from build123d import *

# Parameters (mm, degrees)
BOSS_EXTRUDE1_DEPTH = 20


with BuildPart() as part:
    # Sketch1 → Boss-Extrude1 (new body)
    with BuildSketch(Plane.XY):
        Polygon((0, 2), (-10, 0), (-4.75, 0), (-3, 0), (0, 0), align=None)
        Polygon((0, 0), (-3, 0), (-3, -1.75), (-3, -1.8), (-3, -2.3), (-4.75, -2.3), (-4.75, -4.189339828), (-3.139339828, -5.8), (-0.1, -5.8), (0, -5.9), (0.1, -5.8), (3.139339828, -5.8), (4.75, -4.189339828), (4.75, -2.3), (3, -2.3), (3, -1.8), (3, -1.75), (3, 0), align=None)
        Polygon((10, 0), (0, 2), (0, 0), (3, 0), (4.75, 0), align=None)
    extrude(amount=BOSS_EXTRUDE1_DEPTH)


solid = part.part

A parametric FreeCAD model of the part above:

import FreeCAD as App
import Part
import Sketcher
from FreeCAD import Vector

doc = App.newDocument("Part")
body = doc.addObject("PartDesign::Body", "Body")

# Sketch on XY plane
sketch1 = body.newObject("Sketcher::SketchObject", "Sketch")
sketch1.AttachmentSupport = (doc.getObject("XY_Plane"), [""])
sketch1.MapMode = "FlatFace"
sketch1.addGeometry([
    Part.LineSegment(Vector(0, 2, 0), Vector(-10, 0, 0)),  # 0
    Part.LineSegment(Vector(-10, 0, 0), Vector(-3, 0, 0)),  # 1
    Part.LineSegment(Vector(-3, 0, 0), Vector(-3, -2.3, 0)),  # 2
    Part.LineSegment(Vector(-3, -2.3, 0), Vector(-4.75, -2.3, 0)),  # 3
    Part.LineSegment(Vector(-4.75, -2.3, 0), Vector(-4.75, -4.19, 0)),  # 4
    Part.LineSegment(Vector(-4.75, -4.19, 0), Vector(-3.14, -5.8, 0)),  # 5
    Part.LineSegment(Vector(-3.14, -5.8, 0), Vector(-0.1, -5.8, 0)),  # 6
    Part.LineSegment(Vector(-0.1, -5.8, 0), Vector(0, -5.9, 0)),  # 7
    Part.LineSegment(Vector(0, -5.9, 0), Vector(0.1, -5.8, 0)),  # 8
    Part.LineSegment(Vector(0.1, -5.8, 0), Vector(3.14, -5.8, 0)),  # 9
    Part.LineSegment(Vector(3.14, -5.8, 0), Vector(4.75, -4.19, 0)),  # 10
    Part.LineSegment(Vector(4.75, -4.19, 0), Vector(4.75, -2.3, 0)),  # 11
    Part.LineSegment(Vector(4.75, -2.3, 0), Vector(3, -2.3, 0)),  # 12
    Part.LineSegment(Vector(3, -2.3, 0), Vector(3, 0, 0)),  # 13
    Part.LineSegment(Vector(3, 0, 0), Vector(10, 0, 0)),  # 14
    Part.LineSegment(Vector(10, 0, 0), Vector(0, 2, 0)),  # 15
], False)
sketch1.addConstraint([
    Sketcher.Constraint("Coincident", 0, 2, 1, 1),
    Sketcher.Constraint("Coincident", 1, 2, 2, 1),
    Sketcher.Constraint("Coincident", 2, 2, 3, 1),
    Sketcher.Constraint("Coincident", 3, 2, 4, 1),
    Sketcher.Constraint("Coincident", 4, 2, 5, 1),
    Sketcher.Constraint("Coincident", 5, 2, 6, 1),
    Sketcher.Constraint("Coincident", 6, 2, 7, 1),
    Sketcher.Constraint("Coincident", 7, 2, 8, 1),
    Sketcher.Constraint("Coincident", 8, 2, 9, 1),
    Sketcher.Constraint("Coincident", 9, 2, 10, 1),
    Sketcher.Constraint("Coincident", 10, 2, 11, 1),
    Sketcher.Constraint("Coincident", 11, 2, 12, 1),
    Sketcher.Constraint("Coincident", 12, 2, 13, 1),
    Sketcher.Constraint("Coincident", 13, 2, 14, 1),
    Sketcher.Constraint("Coincident", 14, 2, 15, 1),
    Sketcher.Constraint("Coincident", 15, 2, 0, 1),
    Sketcher.Constraint("Horizontal", 1),
    Sketcher.Constraint("Vertical", 2),
    Sketcher.Constraint("Horizontal", 3),
    Sketcher.Constraint("Vertical", 4),
    Sketcher.Constraint("Horizontal", 6),
    Sketcher.Constraint("Horizontal", 9),
    Sketcher.Constraint("Vertical", 11),
    Sketcher.Constraint("Horizontal", 12),
    Sketcher.Constraint("Vertical", 13),
    Sketcher.Constraint("Horizontal", 14),
    Sketcher.Constraint("Symmetric", 1, 2, 13, 2, -1, 1),
    Sketcher.Constraint("Symmetric", 6, 2, 8, 2, -2),
    Sketcher.Constraint("Symmetric", 4, 2, 10, 2, -2),
    Sketcher.Constraint("Symmetric", 0, 2, 14, 2, -2),
    Sketcher.Constraint("PointOnObject", 7, 2, -2),
    Sketcher.Constraint("PointOnObject", 15, 2, -2),
    Sketcher.Constraint("Parallel", 5, 7),
    Sketcher.Constraint("Perpendicular", 7, 8),
    Sketcher.Constraint("Parallel", 8, 10),
    Sketcher.Constraint("Horizontal", 3, 2, 11, 2),
    Sketcher.Constraint("DistanceX", 1, 1, 1, 2, 7.0),
    Sketcher.Constraint("DistanceY", 2, 2, 2, 1, 2.3),
    Sketcher.Constraint("DistanceX", 0, 2, -1, 1, 10.0),
    Sketcher.Constraint("DistanceY", -1, 1, 15, 2, 2.0),
    Sketcher.Constraint("DistanceX", 3, 2, 3, 1, 1.75),
    Sketcher.Constraint("DistanceY", 5, 2, -1, 1, 5.8),
    Sketcher.Constraint("DistanceX", 6, 2, -1, 1, 0.1),
    Sketcher.Constraint("DistanceX", 6, 1, 6, 2, 3.03934),
])
pad1 = body.newObject("PartDesign::Pad", "Pad")
pad1.Profile = sketch1
pad1.Length = 20

doc.recompute()
